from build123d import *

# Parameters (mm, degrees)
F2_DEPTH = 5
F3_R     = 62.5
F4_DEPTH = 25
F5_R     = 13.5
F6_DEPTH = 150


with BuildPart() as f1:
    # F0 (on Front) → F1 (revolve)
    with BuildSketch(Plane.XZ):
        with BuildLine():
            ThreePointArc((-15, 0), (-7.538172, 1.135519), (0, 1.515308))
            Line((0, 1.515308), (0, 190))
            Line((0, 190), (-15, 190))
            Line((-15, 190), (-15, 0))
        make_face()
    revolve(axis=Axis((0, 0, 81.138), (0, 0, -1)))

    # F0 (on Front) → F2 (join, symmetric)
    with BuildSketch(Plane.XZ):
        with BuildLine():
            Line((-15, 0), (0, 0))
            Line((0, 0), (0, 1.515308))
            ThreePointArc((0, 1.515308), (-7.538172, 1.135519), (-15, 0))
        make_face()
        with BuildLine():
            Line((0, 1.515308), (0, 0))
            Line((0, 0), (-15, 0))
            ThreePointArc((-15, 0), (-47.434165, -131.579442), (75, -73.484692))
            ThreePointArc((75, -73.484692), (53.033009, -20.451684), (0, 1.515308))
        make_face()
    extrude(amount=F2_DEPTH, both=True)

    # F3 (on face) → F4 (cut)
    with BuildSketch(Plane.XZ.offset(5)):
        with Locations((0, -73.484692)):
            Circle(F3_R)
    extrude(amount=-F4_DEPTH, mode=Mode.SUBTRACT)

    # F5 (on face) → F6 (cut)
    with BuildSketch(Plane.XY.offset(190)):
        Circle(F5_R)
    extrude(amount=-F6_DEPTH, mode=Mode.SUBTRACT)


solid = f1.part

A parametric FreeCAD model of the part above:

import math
import FreeCAD as App
import Part
import Sketcher

V = App.Vector

doc = App.newDocument("Part")
body = doc.addObject("PartDesign::Body", "Body")

sketch1 = body.newObject("Sketcher::SketchObject", "Sketch")
sketch1.AttachmentSupport = (doc.getObject("XZ_Plane"), [""])
sketch1.MapMode = "FlatFace"
sketch1.addGeometry([
    Part.ArcOfCircle(Part.Circle(V(0, -73, 0), V(0, 0, 1), 75), math.radians(90), math.radians(101.54)),
    Part.LineSegment(V(0, 2, 0), V(0, 190, 0)),
    Part.LineSegment(V(0, 190, 0), V(-15, 190, 0)),
    Part.LineSegment(V(-15, 190, 0), V(-15, 0, 0)),
], False)
sketch1.addConstraint([
    Sketcher.Constraint("Coincident", 0, 1, 1, 1),
    Sketcher.Constraint("Coincident", 1, 2, 2, 1),
    Sketcher.Constraint("Coincident", 2, 2, 3, 1),
    Sketcher.Constraint("Coincident", 3, 2, 0, 2),
    Sketcher.Constraint("Vertical", 1),
    Sketcher.Constraint("Horizontal", 2),
    Sketcher.Constraint("Vertical", 3),
    Sketcher.Constraint("PointOnObject", 0, 1, -2),
    Sketcher.Constraint("PointOnObject", 3, 2, -1),
    Sketcher.Constraint("DistanceX", 2, 2, 2, 1, 15.0),
    Sketcher.Constraint("DistanceY", 3, 2, 3, 1, 190.0),
    Sketcher.Constraint("Radius", 0, 75.000068),
    Sketcher.Constraint("DistanceY", 1, 1, 1, 2, 188.484692),
])
revolution = body.newObject("PartDesign::Revolution", "Revolution")
revolution.Profile = sketch1
revolution.ReferenceAxis = (sketch1, ["V_Axis"])
revolution.Angle = 360

sketch2 = body.newObject("Sketcher::SketchObject", "Sketch001")
sketch2.AttachmentSupport = (doc.getObject("XZ_Plane"), [""])
sketch2.MapMode = "FlatFace"
sketch2.addGeometry([
    Part.ArcOfCircle(Part.Circle(V(0.000008, -73.48476, 0), V(0, 0, 1), 75.000068), math.radians(90.000006), math.radians(101.536955)),
    Part.ArcOfCircle(Part.Circle(V(0, -73.484692, 0), V(0, 0, 1), 75), math.radians(101.536959), math.radians(360)),
    Part.ArcOfCircle(Part.Circle(V(0, -73.484692, 0), V(0, 0, 1), 75), math.radians(0), math.radians(90)),
], False)
sketch2.addConstraint([
    Sketcher.Constraint("Coincident", 0, 2, 1, 1),
    Sketcher.Constraint("Coincident", 1, 2, 2, 1),
    Sketcher.Constraint("Coincident", 2, 2, 0, 1),
    Sketcher.Constraint("Coincident", 2, 3, 1, 3),
    Sketcher.Constraint("PointOnObject", 1, 3, -2),
    Sketcher.Constraint("PointOnObject", 0, 2, -1),
    Sketcher.Constraint("PointOnObject", 2, 2, -2),
    Sketcher.Constraint("Radius", 1, 75.0),
    Sketcher.Constraint("DistanceX", 0, 2, -1, 1, 15.0),
    Sketcher.Constraint("DistanceY", 1, 2, 2, 2, 75.0),
    Sketcher.Constraint("Radius", 0, 75.000068),
])
pad1 = body.newObject("PartDesign::Pad", "Pad")
pad1.Profile = sketch2
pad1.Length = 10
pad1.Midplane = True

sketch3 = body.newObject("Sketcher::SketchObject", "Sketch002")
sketch3.AttachmentSupport = (doc.getObject("XZ_Plane"), [""])
sketch3.MapMode = "FlatFace"
sketch3.AttachmentOffset = App.Placement(V(0, 0, 5), App.Rotation())
sketch3.addGeometry(Part.Circle(V(0, -73, 0), V(0, 0, 1), 62), False)
sketch3.addConstraint([
    Sketcher.Constraint("PointOnObject", 0, 3, -2),
    Sketcher.Constraint("Diameter", 0, 125.0),
    Sketcher.Constraint("DistanceY", 0, 3, -1, 1, 73.484692),
])
pocket1 = body.newObject("PartDesign::Pocket", "Pocket")
pocket1.Profile = sketch3
pocket1.Length = 25

sketch4 = body.newObject("Sketcher::SketchObject", "Sketch003")
sketch4.AttachmentSupport = (doc.getObject("XY_Plane"), [""])
sketch4.MapMode = "FlatFace"
sketch4.AttachmentOffset = App.Placement(V(0, 0, 190), App.Rotation())
sketch4.addGeometry(Part.Circle(V(0, 0, 0), V(0, 0, 1), 14), False)
sketch4.addConstraint([
    Sketcher.Constraint("Coincident", 0, 3, -1, 1),
    Sketcher.Constraint("Diameter", 0, 27.0),
])
pocket2 = body.newObject("PartDesign::Pocket", "Pocket001")
pocket2.Profile = sketch4
pocket2.Length = 150

doc.recompute()
